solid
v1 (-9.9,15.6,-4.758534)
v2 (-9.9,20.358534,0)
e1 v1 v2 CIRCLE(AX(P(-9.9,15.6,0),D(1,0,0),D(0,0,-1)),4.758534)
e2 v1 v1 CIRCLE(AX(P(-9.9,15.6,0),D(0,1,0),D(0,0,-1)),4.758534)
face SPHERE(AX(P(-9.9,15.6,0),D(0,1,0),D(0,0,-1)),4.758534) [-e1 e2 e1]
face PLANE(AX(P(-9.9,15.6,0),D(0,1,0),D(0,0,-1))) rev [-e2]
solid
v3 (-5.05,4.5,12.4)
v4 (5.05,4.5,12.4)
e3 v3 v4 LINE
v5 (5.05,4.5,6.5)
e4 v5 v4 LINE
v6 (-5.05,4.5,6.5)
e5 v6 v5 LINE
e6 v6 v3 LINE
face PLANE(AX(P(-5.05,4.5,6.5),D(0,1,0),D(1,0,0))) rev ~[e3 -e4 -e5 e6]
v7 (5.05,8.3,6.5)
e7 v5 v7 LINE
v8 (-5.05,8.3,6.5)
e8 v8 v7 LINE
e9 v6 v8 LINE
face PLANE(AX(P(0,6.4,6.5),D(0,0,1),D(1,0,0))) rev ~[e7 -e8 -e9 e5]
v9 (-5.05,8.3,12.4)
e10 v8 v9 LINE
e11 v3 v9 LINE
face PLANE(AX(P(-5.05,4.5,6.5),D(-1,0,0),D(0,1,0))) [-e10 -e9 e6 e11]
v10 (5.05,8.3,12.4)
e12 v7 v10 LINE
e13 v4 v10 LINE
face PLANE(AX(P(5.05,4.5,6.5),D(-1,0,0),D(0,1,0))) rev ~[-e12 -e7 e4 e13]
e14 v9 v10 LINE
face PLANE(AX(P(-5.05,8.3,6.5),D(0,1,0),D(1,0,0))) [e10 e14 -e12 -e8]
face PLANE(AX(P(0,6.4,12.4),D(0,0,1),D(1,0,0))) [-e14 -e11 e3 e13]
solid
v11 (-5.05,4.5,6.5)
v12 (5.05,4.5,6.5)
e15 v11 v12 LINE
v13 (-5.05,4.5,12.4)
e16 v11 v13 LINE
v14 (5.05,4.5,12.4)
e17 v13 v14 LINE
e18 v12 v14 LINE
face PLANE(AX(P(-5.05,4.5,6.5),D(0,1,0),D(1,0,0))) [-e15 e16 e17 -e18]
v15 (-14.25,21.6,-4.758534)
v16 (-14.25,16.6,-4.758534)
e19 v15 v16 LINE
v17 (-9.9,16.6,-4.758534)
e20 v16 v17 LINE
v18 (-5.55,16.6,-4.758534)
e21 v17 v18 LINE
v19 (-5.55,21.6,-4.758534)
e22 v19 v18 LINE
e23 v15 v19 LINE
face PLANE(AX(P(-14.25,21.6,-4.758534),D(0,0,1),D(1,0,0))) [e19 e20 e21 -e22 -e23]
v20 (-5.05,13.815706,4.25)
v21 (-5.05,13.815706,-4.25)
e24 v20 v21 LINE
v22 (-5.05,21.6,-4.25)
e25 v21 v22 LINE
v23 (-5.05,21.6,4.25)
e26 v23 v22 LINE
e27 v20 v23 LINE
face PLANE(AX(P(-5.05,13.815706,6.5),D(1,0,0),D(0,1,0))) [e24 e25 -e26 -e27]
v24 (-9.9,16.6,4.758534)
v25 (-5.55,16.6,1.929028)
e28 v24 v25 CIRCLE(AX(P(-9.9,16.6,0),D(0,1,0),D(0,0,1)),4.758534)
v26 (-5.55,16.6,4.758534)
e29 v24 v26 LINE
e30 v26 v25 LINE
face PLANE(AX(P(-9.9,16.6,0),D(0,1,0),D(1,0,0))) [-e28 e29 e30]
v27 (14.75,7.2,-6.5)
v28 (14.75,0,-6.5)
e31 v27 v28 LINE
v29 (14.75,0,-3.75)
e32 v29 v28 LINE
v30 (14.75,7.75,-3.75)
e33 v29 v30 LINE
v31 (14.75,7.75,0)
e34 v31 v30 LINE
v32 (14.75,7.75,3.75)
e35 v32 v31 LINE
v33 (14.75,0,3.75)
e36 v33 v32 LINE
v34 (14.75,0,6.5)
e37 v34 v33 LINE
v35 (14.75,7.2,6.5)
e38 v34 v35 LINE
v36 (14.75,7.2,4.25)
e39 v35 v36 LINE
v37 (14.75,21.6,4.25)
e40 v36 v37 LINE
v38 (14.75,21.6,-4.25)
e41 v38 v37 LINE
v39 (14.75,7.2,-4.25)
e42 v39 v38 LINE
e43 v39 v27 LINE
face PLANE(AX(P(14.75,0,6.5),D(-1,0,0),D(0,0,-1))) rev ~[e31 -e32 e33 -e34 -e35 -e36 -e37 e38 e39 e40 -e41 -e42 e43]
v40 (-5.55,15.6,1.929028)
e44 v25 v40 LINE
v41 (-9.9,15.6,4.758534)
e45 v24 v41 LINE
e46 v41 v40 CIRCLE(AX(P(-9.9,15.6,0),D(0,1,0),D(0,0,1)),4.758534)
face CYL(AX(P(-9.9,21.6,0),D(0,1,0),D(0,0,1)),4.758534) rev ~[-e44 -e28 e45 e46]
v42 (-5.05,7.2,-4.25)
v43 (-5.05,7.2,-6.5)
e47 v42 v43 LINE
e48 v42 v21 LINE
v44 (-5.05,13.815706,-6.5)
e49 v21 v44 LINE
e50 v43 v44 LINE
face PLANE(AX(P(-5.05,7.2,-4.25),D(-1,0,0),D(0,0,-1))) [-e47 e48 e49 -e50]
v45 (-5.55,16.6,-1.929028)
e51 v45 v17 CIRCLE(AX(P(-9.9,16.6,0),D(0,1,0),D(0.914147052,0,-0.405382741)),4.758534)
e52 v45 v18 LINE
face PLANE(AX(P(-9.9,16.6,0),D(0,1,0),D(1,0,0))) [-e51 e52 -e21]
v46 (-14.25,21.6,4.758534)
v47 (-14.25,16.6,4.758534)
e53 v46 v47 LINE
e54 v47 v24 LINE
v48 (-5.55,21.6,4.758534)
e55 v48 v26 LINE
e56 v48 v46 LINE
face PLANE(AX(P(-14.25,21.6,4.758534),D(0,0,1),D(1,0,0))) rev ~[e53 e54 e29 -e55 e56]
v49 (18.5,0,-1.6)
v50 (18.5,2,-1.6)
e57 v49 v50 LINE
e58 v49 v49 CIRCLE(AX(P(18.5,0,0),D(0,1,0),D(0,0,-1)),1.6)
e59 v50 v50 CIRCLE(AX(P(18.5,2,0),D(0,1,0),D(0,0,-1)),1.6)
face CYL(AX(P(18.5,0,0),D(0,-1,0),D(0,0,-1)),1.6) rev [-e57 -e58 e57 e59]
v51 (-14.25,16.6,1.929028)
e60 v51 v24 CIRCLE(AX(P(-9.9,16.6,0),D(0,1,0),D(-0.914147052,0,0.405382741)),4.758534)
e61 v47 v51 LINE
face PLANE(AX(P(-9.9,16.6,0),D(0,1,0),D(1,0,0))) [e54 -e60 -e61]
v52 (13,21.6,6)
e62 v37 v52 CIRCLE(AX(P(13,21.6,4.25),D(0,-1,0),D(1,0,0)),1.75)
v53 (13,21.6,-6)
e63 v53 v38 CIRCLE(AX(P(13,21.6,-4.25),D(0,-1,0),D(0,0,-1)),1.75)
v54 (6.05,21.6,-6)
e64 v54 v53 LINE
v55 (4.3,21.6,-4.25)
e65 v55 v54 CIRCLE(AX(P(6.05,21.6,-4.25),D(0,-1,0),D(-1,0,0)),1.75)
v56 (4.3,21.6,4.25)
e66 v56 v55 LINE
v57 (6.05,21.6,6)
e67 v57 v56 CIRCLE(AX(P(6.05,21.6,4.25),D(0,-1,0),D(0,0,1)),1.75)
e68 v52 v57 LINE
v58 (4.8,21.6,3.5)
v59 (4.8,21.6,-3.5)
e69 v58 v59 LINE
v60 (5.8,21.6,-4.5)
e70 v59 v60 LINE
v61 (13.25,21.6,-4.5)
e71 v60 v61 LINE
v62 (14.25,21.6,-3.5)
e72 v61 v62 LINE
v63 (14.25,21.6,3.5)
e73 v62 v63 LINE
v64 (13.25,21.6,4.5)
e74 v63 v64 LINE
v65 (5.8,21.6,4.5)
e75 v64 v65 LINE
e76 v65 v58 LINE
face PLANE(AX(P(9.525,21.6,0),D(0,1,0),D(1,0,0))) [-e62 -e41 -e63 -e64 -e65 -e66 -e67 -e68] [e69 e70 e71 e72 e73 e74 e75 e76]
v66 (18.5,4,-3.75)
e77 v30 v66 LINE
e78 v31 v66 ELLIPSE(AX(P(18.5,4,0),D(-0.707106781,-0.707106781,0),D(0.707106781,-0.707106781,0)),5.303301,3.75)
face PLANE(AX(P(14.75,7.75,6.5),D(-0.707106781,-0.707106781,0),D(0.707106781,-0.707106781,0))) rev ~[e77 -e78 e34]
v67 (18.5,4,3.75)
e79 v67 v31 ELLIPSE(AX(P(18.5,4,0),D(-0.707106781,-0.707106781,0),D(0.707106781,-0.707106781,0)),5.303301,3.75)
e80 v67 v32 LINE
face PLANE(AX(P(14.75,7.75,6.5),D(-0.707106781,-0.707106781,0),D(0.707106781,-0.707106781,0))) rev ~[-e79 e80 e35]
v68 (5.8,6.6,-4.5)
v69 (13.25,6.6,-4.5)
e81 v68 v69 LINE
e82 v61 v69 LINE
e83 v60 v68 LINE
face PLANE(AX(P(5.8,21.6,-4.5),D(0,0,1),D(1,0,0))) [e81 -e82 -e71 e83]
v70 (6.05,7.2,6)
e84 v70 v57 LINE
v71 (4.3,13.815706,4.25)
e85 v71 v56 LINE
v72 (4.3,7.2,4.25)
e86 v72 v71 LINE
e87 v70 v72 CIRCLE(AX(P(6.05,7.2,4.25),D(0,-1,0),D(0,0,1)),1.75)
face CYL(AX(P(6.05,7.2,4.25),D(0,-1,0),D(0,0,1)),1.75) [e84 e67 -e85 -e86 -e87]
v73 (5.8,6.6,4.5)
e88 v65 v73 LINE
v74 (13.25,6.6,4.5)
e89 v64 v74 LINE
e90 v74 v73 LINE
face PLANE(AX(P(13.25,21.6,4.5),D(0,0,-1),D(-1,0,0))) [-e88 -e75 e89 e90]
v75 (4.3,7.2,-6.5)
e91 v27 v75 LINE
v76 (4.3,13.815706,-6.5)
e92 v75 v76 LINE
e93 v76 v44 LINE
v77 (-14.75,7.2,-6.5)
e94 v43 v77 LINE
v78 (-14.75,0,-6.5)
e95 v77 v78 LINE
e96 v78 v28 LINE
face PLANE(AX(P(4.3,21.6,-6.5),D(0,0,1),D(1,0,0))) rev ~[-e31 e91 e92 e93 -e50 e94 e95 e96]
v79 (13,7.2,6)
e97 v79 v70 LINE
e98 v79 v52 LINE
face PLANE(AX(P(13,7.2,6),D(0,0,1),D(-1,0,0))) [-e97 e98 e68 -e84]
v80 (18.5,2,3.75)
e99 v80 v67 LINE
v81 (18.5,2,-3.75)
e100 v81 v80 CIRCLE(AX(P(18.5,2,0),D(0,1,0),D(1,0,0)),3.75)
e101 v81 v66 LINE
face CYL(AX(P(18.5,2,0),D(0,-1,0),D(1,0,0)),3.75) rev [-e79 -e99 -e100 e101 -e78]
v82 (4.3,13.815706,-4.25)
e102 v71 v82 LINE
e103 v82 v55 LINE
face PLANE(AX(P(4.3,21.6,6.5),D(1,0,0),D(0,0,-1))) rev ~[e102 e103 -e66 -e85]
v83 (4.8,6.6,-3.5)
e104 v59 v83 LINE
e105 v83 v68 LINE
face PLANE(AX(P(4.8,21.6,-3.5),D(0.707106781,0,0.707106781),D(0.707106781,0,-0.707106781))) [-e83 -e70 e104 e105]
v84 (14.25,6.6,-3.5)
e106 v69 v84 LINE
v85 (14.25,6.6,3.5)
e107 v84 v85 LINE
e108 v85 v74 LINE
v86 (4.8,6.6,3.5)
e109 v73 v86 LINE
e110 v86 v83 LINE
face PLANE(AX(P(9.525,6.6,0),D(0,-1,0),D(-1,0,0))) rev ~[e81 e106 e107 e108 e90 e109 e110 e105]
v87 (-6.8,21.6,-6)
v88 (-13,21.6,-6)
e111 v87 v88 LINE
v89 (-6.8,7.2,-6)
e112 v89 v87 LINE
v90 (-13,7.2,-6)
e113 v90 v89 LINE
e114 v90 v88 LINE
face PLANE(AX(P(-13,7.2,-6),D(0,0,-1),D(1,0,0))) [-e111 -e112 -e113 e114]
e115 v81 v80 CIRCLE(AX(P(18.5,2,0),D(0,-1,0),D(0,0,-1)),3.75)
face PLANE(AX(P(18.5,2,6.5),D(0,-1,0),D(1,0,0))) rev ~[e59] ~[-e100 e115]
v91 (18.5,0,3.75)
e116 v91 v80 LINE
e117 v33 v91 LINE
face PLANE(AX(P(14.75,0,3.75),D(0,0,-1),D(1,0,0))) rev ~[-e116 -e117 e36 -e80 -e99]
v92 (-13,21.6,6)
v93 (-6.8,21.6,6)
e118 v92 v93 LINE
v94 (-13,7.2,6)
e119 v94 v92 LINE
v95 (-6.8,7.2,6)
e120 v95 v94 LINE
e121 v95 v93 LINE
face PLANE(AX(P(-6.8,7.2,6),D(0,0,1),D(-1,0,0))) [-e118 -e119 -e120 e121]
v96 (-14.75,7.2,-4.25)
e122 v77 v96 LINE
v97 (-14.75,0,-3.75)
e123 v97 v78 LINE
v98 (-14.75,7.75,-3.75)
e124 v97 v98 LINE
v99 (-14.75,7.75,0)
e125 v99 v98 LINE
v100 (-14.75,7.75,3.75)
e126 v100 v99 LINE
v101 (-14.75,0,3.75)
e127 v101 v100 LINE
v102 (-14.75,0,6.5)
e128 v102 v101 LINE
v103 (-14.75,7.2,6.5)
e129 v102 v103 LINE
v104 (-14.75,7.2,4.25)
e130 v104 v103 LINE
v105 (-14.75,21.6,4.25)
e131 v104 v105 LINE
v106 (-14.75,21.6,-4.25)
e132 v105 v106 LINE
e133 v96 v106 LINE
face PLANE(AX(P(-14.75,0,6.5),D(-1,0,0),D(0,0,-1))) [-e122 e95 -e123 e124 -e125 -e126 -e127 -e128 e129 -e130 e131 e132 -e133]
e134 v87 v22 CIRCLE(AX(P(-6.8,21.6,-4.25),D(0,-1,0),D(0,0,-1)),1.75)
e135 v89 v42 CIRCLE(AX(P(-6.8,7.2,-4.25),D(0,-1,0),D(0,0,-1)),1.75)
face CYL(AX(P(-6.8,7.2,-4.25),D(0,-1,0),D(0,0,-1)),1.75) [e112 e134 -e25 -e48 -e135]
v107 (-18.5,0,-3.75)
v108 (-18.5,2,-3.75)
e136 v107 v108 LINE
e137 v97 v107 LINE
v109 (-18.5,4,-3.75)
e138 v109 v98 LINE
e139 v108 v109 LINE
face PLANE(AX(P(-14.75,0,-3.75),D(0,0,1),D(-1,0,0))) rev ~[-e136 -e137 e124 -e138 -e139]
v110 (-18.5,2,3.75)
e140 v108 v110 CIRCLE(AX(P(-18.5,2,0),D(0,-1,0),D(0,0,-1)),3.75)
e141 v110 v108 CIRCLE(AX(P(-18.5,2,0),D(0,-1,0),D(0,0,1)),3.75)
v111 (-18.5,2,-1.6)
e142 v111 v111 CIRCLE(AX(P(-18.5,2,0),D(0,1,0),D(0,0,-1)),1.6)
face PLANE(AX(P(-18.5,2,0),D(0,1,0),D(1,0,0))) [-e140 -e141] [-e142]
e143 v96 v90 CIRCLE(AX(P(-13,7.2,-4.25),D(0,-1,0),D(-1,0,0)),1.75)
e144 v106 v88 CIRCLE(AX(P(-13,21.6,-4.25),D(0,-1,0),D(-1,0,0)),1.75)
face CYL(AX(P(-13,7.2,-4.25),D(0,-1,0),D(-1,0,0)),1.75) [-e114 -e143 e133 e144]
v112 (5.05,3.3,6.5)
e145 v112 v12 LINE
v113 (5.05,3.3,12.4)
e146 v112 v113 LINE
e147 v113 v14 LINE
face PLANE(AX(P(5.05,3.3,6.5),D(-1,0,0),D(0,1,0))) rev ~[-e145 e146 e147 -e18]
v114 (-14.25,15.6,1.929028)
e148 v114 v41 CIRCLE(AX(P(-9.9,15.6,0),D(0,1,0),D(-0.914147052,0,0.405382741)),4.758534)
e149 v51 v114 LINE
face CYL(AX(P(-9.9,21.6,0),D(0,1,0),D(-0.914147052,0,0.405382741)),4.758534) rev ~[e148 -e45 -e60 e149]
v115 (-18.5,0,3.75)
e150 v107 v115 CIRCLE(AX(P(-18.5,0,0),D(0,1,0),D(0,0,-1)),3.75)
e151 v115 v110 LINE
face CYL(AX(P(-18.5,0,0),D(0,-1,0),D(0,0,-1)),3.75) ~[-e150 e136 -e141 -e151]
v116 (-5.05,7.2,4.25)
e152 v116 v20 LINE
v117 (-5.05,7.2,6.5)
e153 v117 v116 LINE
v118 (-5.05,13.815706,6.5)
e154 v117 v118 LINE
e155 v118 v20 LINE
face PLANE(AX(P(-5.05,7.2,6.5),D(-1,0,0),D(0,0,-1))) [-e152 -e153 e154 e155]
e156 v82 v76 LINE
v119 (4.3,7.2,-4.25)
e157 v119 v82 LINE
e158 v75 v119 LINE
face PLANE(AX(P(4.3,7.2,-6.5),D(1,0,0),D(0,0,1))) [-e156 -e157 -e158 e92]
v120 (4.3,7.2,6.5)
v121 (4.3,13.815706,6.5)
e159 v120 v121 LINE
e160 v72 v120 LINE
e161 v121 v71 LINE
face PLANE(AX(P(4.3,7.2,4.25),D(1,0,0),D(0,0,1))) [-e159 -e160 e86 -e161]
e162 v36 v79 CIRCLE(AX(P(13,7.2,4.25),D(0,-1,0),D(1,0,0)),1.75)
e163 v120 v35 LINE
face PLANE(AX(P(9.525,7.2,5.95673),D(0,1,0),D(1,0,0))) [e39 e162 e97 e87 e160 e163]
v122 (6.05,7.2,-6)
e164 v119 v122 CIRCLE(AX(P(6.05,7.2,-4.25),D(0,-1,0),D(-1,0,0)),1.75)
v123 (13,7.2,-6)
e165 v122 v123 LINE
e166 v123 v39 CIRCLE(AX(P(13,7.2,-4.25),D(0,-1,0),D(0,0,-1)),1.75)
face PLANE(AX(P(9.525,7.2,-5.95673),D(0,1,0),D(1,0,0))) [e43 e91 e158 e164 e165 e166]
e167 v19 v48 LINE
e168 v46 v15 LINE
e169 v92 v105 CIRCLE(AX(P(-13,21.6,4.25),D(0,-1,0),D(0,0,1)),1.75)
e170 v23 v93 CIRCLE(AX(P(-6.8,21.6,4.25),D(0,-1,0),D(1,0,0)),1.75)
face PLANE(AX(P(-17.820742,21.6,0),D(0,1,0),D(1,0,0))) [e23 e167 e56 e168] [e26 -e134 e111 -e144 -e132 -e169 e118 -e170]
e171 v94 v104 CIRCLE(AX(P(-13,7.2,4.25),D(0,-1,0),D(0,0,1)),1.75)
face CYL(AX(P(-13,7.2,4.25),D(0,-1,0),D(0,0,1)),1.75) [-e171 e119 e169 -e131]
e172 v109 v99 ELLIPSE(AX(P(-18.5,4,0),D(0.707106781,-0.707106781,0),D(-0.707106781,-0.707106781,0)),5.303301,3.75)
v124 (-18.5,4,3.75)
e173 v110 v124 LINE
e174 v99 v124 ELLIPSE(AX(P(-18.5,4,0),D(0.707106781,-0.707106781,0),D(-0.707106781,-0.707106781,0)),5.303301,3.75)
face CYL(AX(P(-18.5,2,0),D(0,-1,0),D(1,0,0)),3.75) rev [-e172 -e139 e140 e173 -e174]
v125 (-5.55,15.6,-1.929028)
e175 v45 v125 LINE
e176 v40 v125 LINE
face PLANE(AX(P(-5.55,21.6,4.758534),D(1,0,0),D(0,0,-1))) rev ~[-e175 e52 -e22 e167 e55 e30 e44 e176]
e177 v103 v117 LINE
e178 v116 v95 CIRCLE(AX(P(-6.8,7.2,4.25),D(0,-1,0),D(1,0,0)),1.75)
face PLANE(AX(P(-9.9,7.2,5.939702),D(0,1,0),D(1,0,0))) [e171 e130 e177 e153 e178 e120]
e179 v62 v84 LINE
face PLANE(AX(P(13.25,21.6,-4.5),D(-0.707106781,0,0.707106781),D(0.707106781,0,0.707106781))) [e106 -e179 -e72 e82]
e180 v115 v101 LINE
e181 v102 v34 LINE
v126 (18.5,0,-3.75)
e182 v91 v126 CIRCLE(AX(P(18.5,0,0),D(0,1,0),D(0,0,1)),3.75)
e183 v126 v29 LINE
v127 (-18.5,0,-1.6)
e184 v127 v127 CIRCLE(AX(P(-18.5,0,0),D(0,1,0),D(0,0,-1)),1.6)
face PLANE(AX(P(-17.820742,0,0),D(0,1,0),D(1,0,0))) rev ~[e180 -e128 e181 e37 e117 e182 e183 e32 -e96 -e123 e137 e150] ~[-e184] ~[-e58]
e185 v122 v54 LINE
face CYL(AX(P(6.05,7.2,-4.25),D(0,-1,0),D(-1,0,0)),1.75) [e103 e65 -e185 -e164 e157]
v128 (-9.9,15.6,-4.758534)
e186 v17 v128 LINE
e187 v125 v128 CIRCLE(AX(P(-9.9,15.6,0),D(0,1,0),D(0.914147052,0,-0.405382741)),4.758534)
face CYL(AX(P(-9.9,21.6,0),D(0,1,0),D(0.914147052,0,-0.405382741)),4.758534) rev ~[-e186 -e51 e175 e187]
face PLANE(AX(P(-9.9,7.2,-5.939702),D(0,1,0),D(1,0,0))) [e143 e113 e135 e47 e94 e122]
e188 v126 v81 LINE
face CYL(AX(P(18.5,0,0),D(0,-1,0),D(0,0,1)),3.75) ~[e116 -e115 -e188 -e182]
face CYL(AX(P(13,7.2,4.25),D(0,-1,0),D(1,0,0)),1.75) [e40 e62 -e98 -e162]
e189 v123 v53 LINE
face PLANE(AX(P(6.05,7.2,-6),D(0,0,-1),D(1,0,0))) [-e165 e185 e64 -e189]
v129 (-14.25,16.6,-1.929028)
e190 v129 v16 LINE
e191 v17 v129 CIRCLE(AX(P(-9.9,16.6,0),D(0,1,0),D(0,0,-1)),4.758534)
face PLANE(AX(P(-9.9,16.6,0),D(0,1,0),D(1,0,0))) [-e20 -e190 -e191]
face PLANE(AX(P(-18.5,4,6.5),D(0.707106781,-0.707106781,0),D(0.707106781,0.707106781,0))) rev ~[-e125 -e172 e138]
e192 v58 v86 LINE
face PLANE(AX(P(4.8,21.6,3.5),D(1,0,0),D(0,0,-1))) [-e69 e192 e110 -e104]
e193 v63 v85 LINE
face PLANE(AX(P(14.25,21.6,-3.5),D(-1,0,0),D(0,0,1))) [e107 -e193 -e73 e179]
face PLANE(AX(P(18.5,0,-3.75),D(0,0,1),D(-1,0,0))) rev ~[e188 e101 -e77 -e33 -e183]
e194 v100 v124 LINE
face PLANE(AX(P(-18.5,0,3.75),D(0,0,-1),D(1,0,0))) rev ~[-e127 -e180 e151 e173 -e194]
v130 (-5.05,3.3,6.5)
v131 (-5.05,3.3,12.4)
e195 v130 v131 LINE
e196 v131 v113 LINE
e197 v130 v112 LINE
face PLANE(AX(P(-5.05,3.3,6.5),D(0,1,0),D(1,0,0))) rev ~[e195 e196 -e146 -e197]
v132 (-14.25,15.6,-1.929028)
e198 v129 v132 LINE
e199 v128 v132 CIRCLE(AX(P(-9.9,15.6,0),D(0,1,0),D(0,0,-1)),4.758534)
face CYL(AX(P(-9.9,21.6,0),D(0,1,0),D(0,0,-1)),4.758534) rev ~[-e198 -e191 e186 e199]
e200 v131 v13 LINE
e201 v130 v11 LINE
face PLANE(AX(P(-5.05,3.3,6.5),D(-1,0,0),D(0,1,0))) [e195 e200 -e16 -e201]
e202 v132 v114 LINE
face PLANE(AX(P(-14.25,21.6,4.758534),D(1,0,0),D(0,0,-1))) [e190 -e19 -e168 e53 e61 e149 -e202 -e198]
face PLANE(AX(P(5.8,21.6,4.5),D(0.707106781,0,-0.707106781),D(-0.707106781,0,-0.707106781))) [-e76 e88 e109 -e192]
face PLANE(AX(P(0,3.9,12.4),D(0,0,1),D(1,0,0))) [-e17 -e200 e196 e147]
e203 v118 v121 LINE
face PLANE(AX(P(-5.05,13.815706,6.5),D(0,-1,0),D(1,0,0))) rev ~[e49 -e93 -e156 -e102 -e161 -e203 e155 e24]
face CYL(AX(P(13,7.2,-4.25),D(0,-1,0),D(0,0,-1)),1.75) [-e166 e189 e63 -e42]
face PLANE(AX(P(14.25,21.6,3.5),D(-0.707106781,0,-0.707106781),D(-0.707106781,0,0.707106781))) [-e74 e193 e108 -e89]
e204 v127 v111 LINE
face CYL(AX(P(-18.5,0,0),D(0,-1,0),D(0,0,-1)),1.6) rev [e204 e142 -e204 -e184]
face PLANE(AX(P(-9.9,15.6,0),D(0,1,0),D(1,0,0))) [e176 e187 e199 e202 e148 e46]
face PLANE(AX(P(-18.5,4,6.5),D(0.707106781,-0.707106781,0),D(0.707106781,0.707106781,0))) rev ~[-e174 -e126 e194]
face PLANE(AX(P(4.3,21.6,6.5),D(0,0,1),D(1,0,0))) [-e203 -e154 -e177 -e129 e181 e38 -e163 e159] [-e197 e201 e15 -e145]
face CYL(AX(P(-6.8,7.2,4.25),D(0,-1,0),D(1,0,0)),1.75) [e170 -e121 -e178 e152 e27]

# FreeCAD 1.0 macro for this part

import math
import FreeCAD as App
import Part
import Sketcher
Q = App.Units.Quantity


def add_polygon(sketch, points):
    """Adds a closed chain of lines whose ends are joined by coincident constraints."""
    first, n = sketch.GeometryCount, len(points)
    for a, b in zip(points, points[1:] + points[:1]):
        sketch.addGeometry(Part.LineSegment(App.Vector(*a, 0), App.Vector(*b, 0)), False)
    for i in range(n):
        sketch.addConstraint(Sketcher.Constraint("Coincident", first + i, 2, first + (i + 1) % n, 1))

doc = App.newDocument("Part")
body = doc.addObject("PartDesign::Body", "Body")

# Sketch on XZ plane
sketch1 = body.newObject("Sketcher::SketchObject", "Sketch")
sketch1.AttachmentSupport = (doc.getObject("XZ_Plane"), [""])
sketch1.MapMode = "FlatFace"
sketch1.addGeometry([
    Part.LineSegment(App.Vector(-14.8, 3.8, 0), App.Vector(-14.8, 6.5, 0)),  # 0
    Part.LineSegment(App.Vector(-14.8, 6.5, 0), App.Vector(14.8, 6.5, 0)),  # 1
    Part.LineSegment(App.Vector(14.8, 6.5, 0), App.Vector(14.8, 3.8, 0)),  # 2
    Part.LineSegment(App.Vector(14.8, 3.8, 0), App.Vector(18.5, 3.8, 0)),  # 3
    Part.ArcOfCircle(Part.Circle(App.Vector(18.5, 0, 0), App.Vector(0, 0, 1), 3.8), math.radians(-90), math.radians(90)),  # 4
    Part.LineSegment(App.Vector(18.5, -3.8, 0), App.Vector(14.8, -3.8, 0)),  # 5
    Part.LineSegment(App.Vector(14.8, -3.8, 0), App.Vector(14.8, -6.5, 0)),  # 6
    Part.LineSegment(App.Vector(14.8, -6.5, 0), App.Vector(-14.8, -6.5, 0)),  # 7
    Part.LineSegment(App.Vector(-14.8, -6.5, 0), App.Vector(-14.8, -3.8, 0)),  # 8
    Part.LineSegment(App.Vector(-14.8, -3.8, 0), App.Vector(-18.5, -3.8, 0)),  # 9
    Part.ArcOfCircle(Part.Circle(App.Vector(-18.5, 0, 0), App.Vector(0, 0, 1), 3.8), math.radians(90), math.radians(270)),  # 10
    Part.LineSegment(App.Vector(-18.5, 3.8, 0), App.Vector(-14.8, 3.8, 0)),  # 11
    Part.Circle(App.Vector(-18.5, 0, 0), App.Vector(0, 0, 1), 1.6),  # 12
    Part.Circle(App.Vector(18.5, 0, 0), App.Vector(0, 0, 1), 1.6),  # 13
], False)
sketch1.addConstraint([
    Sketcher.Constraint("Coincident", 0, 2, 1, 1),
    Sketcher.Constraint("Coincident", 1, 2, 2, 1),
    Sketcher.Constraint("Coincident", 2, 2, 3, 1),
    Sketcher.Constraint("Tangent", 3, 2, 4, 2),
    Sketcher.Constraint("Tangent", 4, 1, 5, 1),
    Sketcher.Constraint("Coincident", 5, 2, 6, 1),
    Sketcher.Constraint("Coincident", 6, 2, 7, 1),
    Sketcher.Constraint("Coincident", 7, 2, 8, 1),
    Sketcher.Constraint("Coincident", 8, 2, 9, 1),
    Sketcher.Constraint("Tangent", 9, 2, 10, 2),
    Sketcher.Constraint("Tangent", 10, 1, 11, 1),
    Sketcher.Constraint("Coincident", 11, 2, 0, 1),
    Sketcher.Constraint("Vertical", 0),
    Sketcher.Constraint("Horizontal", 1),
    Sketcher.Constraint("Vertical", 2),
    Sketcher.Constraint("Horizontal", 3),
    Sketcher.Constraint("Horizontal", 5),
    Sketcher.Constraint("Vertical", 6),
    Sketcher.Constraint("Horizontal", 7),
    Sketcher.Constraint("Vertical", 8),
    Sketcher.Constraint("Horizontal", 9),
    Sketcher.Constraint("Horizontal", 11),
    Sketcher.Constraint("Coincident", 12, 3, 10, 3),
    Sketcher.Constraint("Coincident", 13, 3, 4, 3),
    Sketcher.Constraint("Equal", 4, 10),
    Sketcher.Constraint("Equal", 12, 13),
    Sketcher.Constraint("Symmetric", 4, 3, 10, 3, -1, 1),
    Sketcher.Constraint("Symmetric", 0, 2, 6, 2, -1, 1),
    Sketcher.Constraint("Symmetric", 5, 2, 8, 2, -2),
    Sketcher.Constraint("Vertical", 2, 2, 5, 2),
    Sketcher.Constraint("Diameter", 12, Q("3.2 mm")),
    Sketcher.Constraint("Radius", 4, Q("3.75 mm")),
    Sketcher.Constraint("DistanceX", 1, 1, 1, 2, Q("29.5 mm")),
    Sketcher.Constraint("DistanceX", 10, 3, 4, 3, Q("37 mm")),
    Sketcher.Constraint("DistanceY", 7, 2, 0, 2, Q("13 mm")),
])
pad1 = body.newObject("PartDesign::Pad", "Pad")
pad1.Profile = sketch1
pad1.Length = 21.6
pad1.Reversed = True

# Sketch on XY plane
sketch2 = body.newObject("Sketcher::SketchObject", "Sketch001")
sketch2.AttachmentSupport = (doc.getObject("XY_Plane"), [""])
sketch2.MapMode = "FlatFace"
sketch2.AttachmentOffset = App.Placement(App.Vector(0, 0, 6.5), App.Rotation())
add_polygon(sketch2, [(-22.2, 2), (-18.5, 2), (-18.5, 4), (-14.8, 7.8), (-14.8, 21.6), (-22.2, 21.6)])  # lines 0-5
add_polygon(sketch2, [(18.5, 4), (18.5, 2), (22.2, 2), (22.2, 21.6), (14.8, 21.6), (14.8, 7.8)])  # lines 6-11
add_polygon(sketch2, [(-5, 21.6), (-5, 13.8), (5, 13.8), (5, 21.6)])  # lines 12-15
sketch2.addConstraint([
    Sketcher.Constraint("Horizontal", 0),
    Sketcher.Constraint("Vertical", 1),
    Sketcher.Constraint("Vertical", 3),
    Sketcher.Constraint("Horizontal", 4),
    Sketcher.Constraint("Vertical", 5),
    Sketcher.Constraint("Vertical", 6),
    Sketcher.Constraint("Horizontal", 7),
    Sketcher.Constraint("Vertical", 8),
    Sketcher.Constraint("Horizontal", 9),
    Sketcher.Constraint("Vertical", 10),
    Sketcher.Constraint("Vertical", 12),
    Sketcher.Constraint("Horizontal", 13),
    Sketcher.Constraint("Vertical", 14),
    Sketcher.Constraint("Horizontal", 15),
    Sketcher.Constraint("Symmetric", 0, 2, 6, 2, -2),
    Sketcher.Constraint("Symmetric", 4, 2, 8, 2, -2),
    Sketcher.Constraint("Symmetric", 2, 2, 10, 2, -2),
    Sketcher.Constraint("Perpendicular", 2, 11),
    Sketcher.Constraint("Horizontal", 1, 2, 11, 2),
    Sketcher.Constraint("Horizontal", 9, 2, 14, 2),
    Sketcher.Constraint("DistanceY", 1, 1, 1, 2, Q("2 mm")),
    Sketcher.Constraint("DistanceX", 4, 2, 4, 1, Q("7.5 mm")),
    Sketcher.Constraint("DistanceX", 13, 1, 13, 2, Q("10.1 mm")),
    Sketcher.Constraint("DistanceY", 5, 2, 5, 1, Q("19.6 mm")),
    Sketcher.Constraint("DistanceY", -1, 1, 0, 2, Q("2 mm")),
    Sketcher.Constraint("DistanceX", 0, 2, 6, 2, Q("37 mm")),
    Sketcher.Constraint("DistanceX", 2, 2, 7, 2, Q("37 mm")),
    Sketcher.Constraint("DistanceX", 2, 2, 12, 2, Q("9.7 mm")),
    Sketcher.Constraint("DistanceY", 12, 2, 12, 1, Q("7.784294 mm")),
])
pocket1 = body.newObject("PartDesign::Pocket", "Pocket")
pocket1.Profile = sketch2
pocket1.Length = 21.6

# Sketch on XZ plane
sketch3 = body.newObject("Sketcher::SketchObject", "Sketch002")
sketch3.AttachmentSupport = (doc.getObject("XZ_Plane"), [""])
sketch3.MapMode = "FlatFace"
sketch3.AttachmentOffset = App.Placement(App.Vector(0, 0, -2), App.Rotation())
sketch3.addGeometry([
    Part.Circle(App.Vector(-18.5, 0, 0), App.Vector(0, 0, 1), 3.8),
    Part.Circle(App.Vector(18.5, 0, 0), App.Vector(0, 0, 1), 3.8),
], False)
sketch3.addConstraint([
    Sketcher.Constraint("Equal", 0, 1),
    Sketcher.Constraint("Symmetric", 0, 3, 1, 3, -1, 1),
    Sketcher.Constraint("PointOnObject", 0, 3, -1),
    Sketcher.Constraint("Diameter", 0, Q("7.5 mm")),
    Sketcher.Constraint("DistanceX", 0, 3, 1, 3, Q("37 mm")),
])
pocket2 = body.newObject("PartDesign::Pocket", "Pocket001")
pocket2.Profile = sketch3
pocket2.Type = "ThroughAll"

# Sketch on XZ plane
sketch4 = body.newObject("Sketcher::SketchObject", "Sketch003")
sketch4.AttachmentSupport = (doc.getObject("XZ_Plane"), [""])
sketch4.MapMode = "FlatFace"
sketch4.AttachmentOffset = App.Placement(App.Vector(0, 0, -7.2), App.Rotation())
sketch4.addGeometry([
    Part.ArcOfCircle(Part.Circle(App.Vector(-13, 4.2, 0), App.Vector(0, 0, 1), 1.8), math.radians(90), math.radians(180)),  # 0
    Part.LineSegment(App.Vector(-14.8, 4.2, 0), App.Vector(-14.8, 6.5, 0)),  # 1
    Part.LineSegment(App.Vector(-14.8, 6.5, 0), App.Vector(-5, 6.5, 0)),  # 2
    Part.LineSegment(App.Vector(-5, 6.5, 0), App.Vector(-5, 4.2, 0)),  # 3
    Part.ArcOfCircle(Part.Circle(App.Vector(-6.8, 4.2, 0), App.Vector(0, 0, 1), 1.8), math.radians(0), math.radians(90)),  # 4
    Part.LineSegment(App.Vector(-6.8, 6, 0), App.Vector(-13, 6, 0)),  # 5
    Part.LineSegment(App.Vector(-5, -6.5, 0), App.Vector(-14.8, -6.5, 0)),  # 6
    Part.LineSegment(App.Vector(-14.8, -6.5, 0), App.Vector(-14.8, -4.2, 0)),  # 7
    Part.ArcOfCircle(Part.Circle(App.Vector(-13, -4.2, 0), App.Vector(0, 0, 1), 1.8), math.radians(180), math.radians(270)),  # 8
    Part.LineSegment(App.Vector(-13, -6, 0), App.Vector(-6.8, -6, 0)),  # 9
    Part.ArcOfCircle(Part.Circle(App.Vector(-6.8, -4.2, 0), App.Vector(0, 0, 1), 1.8), math.radians(-90), math.radians(0)),  # 10
    Part.LineSegment(App.Vector(-5, -4.2, 0), App.Vector(-5, -6.5, 0)),  # 11
], False)
sketch4.addConstraint([
    Sketcher.Constraint("Tangent", 0, 2, 1, 1),
    Sketcher.Constraint("Coincident", 1, 2, 2, 1),
    Sketcher.Constraint("Coincident", 2, 2, 3, 1),
    Sketcher.Constraint("Tangent", 3, 2, 4, 1),
    Sketcher.Constraint("Tangent", 4, 2, 5, 1),
    Sketcher.Constraint("Tangent", 5, 2, 0, 1),
    Sketcher.Constraint("Coincident", 6, 2, 7, 1),
    Sketcher.Constraint("Tangent", 7, 2, 8, 1),
    Sketcher.Constraint("Tangent", 8, 2, 9, 1),
    Sketcher.Constraint("Tangent", 9, 2, 10, 1),
    Sketcher.Constraint("Tangent", 10, 2, 11, 1),
    Sketcher.Constraint("Coincident", 11, 2, 6, 1),
    Sketcher.Constraint("Vertical", 1),
    Sketcher.Constraint("Horizontal", 2),
    Sketcher.Constraint("Vertical", 3),
    Sketcher.Constraint("Horizontal", 5),
    Sketcher.Constraint("Horizontal", 6),
    Sketcher.Constraint("Vertical", 7),
    Sketcher.Constraint("Horizontal", 9),
    Sketcher.Constraint("Vertical", 11),
    Sketcher.Constraint("Equal", 0, 4),
    Sketcher.Constraint("Equal", 4, 8),
    Sketcher.Constraint("Equal", 8, 10),
    Sketcher.Constraint("Symmetric", 0, 3, 8, 3, -1),
    Sketcher.Constraint("Symmetric", 2, 2, 11, 2, -1),
    Sketcher.Constraint("Radius", 0, Q("1.75 mm")),
    Sketcher.Constraint("DistanceX", 2, 1, 2, 2, Q("9.7 mm")),
    Sketcher.Constraint("DistanceX", 0, 3, -1, 1, Q("13 mm")),
    Sketcher.Constraint("DistanceY", -1, 1, 4, 2, Q("6 mm")),
    Sketcher.Constraint("DistanceY", 1, 1, 1, 2, Q("2.25 mm")),
])
pocket3 = body.newObject("PartDesign::Pocket", "Pocket002")
pocket3.Profile = sketch4
pocket3.Type = "ThroughAll"

# Sketch on XZ plane
sketch5 = body.newObject("Sketcher::SketchObject", "Sketch004")
sketch5.AttachmentSupport = (doc.getObject("XZ_Plane"), [""])
sketch5.MapMode = "FlatFace"
sketch5.AttachmentOffset = App.Placement(App.Vector(0, 0, -21.6), App.Rotation())
add_polygon(sketch5, [(4, -6), (4, 6), (15, 6), (15, -6)])  # lines 0-3
sketch5.addConstraint([
    Sketcher.Constraint("Vertical", 0),
    Sketcher.Constraint("Horizontal", 1),
    Sketcher.Constraint("Vertical", 2),
    Sketcher.Constraint("Horizontal", 3),
    Sketcher.Constraint("DistanceY", 0, 1, 0, 2, Q("13 mm")),
    Sketcher.Constraint("DistanceX", 1, 1, 1, 2, Q("10.45 mm")),
    Sketcher.Constraint("DistanceX", -1, 1, 0, 2, Q("4.3 mm")),
    Sketcher.Constraint("DistanceY", -1, 1, 0, 2, Q("6.5 mm")),
])
pad2 = body.newObject("PartDesign::Pad", "Pad001")
pad2.Profile = sketch5
pad2.Length = 7.784294

# Sketch on XZ plane
sketch6 = body.newObject("Sketcher::SketchObject", "Sketch005")
sketch6.AttachmentSupport = (doc.getObject("XZ_Plane"), [""])
sketch6.MapMode = "FlatFace"
sketch6.AttachmentOffset = App.Placement(App.Vector(0, 0, -7.2), App.Rotation())
sketch6.addGeometry([
    Part.LineSegment(App.Vector(14.8, 6.5, 0), App.Vector(14.8, 4.2, 0)),  # 0
    Part.ArcOfCircle(Part.Circle(App.Vector(13, 4.2, 0), App.Vector(0, 0, 1), 1.8), math.radians(0), math.radians(90)),  # 1
    Part.LineSegment(App.Vector(13, 6, 0), App.Vector(6, 6, 0)),  # 2
    Part.ArcOfCircle(Part.Circle(App.Vector(6, 4.2, 0), App.Vector(0, 0, 1), 1.8), math.radians(90), math.radians(180)),  # 3
    Part.LineSegment(App.Vector(4.3, 4.2, 0), App.Vector(4.3, 6.5, 0)),  # 4
    Part.LineSegment(App.Vector(4.3, 6.5, 0), App.Vector(14.8, 6.5, 0)),  # 5
    Part.LineSegment(App.Vector(14.8, -4.2, 0), App.Vector(14.8, -6.5, 0)),  # 6
    Part.LineSegment(App.Vector(14.8, -6.5, 0), App.Vector(4.3, -6.5, 0)),  # 7
    Part.LineSegment(App.Vector(4.3, -6.5, 0), App.Vector(4.3, -4.2, 0)),  # 8
    Part.ArcOfCircle(Part.Circle(App.Vector(6, -4.2, 0), App.Vector(0, 0, 1), 1.8), math.radians(180), math.radians(270)),  # 9
    Part.LineSegment(App.Vector(6, -6, 0), App.Vector(13, -6, 0)),  # 10
    Part.ArcOfCircle(Part.Circle(App.Vector(13, -4.2, 0), App.Vector(0, 0, 1), 1.8), math.radians(-90), math.radians(0)),  # 11
], False)
sketch6.addConstraint([
    Sketcher.Constraint("Tangent", 0, 2, 1, 1),
    Sketcher.Constraint("Tangent", 1, 2, 2, 1),
    Sketcher.Constraint("Tangent", 2, 2, 3, 1),
    Sketcher.Constraint("Tangent", 3, 2, 4, 1),
    Sketcher.Constraint("Coincident", 4, 2, 5, 1),
    Sketcher.Constraint("Coincident", 5, 2, 0, 1),
    Sketcher.Constraint("Coincident", 6, 2, 7, 1),
    Sketcher.Constraint("Coincident", 7, 2, 8, 1),
    Sketcher.Constraint("Tangent", 8, 2, 9, 1),
    Sketcher.Constraint("Tangent", 9, 2, 10, 1),
    Sketcher.Constraint("Tangent", 10, 2, 11, 1),
    Sketcher.Constraint("Tangent", 11, 2, 6, 1),
    Sketcher.Constraint("Vertical", 0),
    Sketcher.Constraint("Horizontal", 2),
    Sketcher.Constraint("Vertical", 4),
    Sketcher.Constraint("Horizontal", 5),
    Sketcher.Constraint("Vertical", 6),
    Sketcher.Constraint("Horizontal", 7),
    Sketcher.Constraint("Vertical", 8),
    Sketcher.Constraint("Horizontal", 10),
    Sketcher.Constraint("Equal", 1, 3),
    Sketcher.Constraint("Equal", 3, 9),
    Sketcher.Constraint("Equal", 9, 11),
    Sketcher.Constraint("Symmetric", 3, 3, 9, 3, -1),
    Sketcher.Constraint("Symmetric", 5, 2, 6, 2, -1),
    Sketcher.Constraint("Radius", 1, Q("1.75 mm")),
    Sketcher.Constraint("DistanceX", -1, 1, 1, 3, Q("13 mm")),
    Sketcher.Constraint("DistanceY", -1, 1, 1, 2, Q("6 mm")),
    Sketcher.Constraint("DistanceX", 2, 2, 2, 1, Q("6.95 mm")),
    Sketcher.Constraint("DistanceY", 0, 2, 0, 1, Q("2.25 mm")),
])
pocket4 = body.newObject("PartDesign::Pocket", "Pocket003")
pocket4.Profile = sketch6
pocket4.Length = 14.4

# Sketch on XZ plane
sketch7 = body.newObject("Sketcher::SketchObject", "Sketch006")
sketch7.AttachmentSupport = (doc.getObject("XZ_Plane"), [""])
sketch7.MapMode = "FlatFace"
sketch7.AttachmentOffset = App.Placement(App.Vector(0, 0, -21.6), App.Rotation())
sketch7.addGeometry([
    Part.ArcOfCircle(Part.Circle(App.Vector(-9.9, 0, 0), App.Vector(0, 0, 1), 4.8), math.radians(-90), math.radians(-24)),  # 0
    Part.ArcOfCircle(Part.Circle(App.Vector(-9.9, 0, 0), App.Vector(0, 0, 1), 4.8), math.radians(-156), math.radians(-90)),  # 1
    Part.LineSegment(App.Vector(-14.2, -1.9, 0), App.Vector(-14.2, 1.9, 0)),  # 2
    Part.ArcOfCircle(Part.Circle(App.Vector(-9.9, 0, 0), App.Vector(0, 0, 1), 4.8), math.radians(90), math.radians(156)),  # 3
    Part.ArcOfCircle(Part.Circle(App.Vector(-9.9, 0, 0), App.Vector(0, 0, 1), 4.8), math.radians(24), math.radians(90)),  # 4
    Part.LineSegment(App.Vector(-5.5, 1.9, 0), App.Vector(-5.5, -1.9, 0)),  # 5
], False)
sketch7.addConstraint([
    Sketcher.Constraint("Tangent", 0, 1, 1, 2),
    Sketcher.Constraint("Coincident", 1, 1, 2, 1),
    Sketcher.Constraint("Coincident", 2, 2, 3, 2),
    Sketcher.Constraint("Tangent", 3, 1, 4, 2),
    Sketcher.Constraint("Coincident", 4, 1, 5, 1),
    Sketcher.Constraint("Coincident", 5, 2, 0, 2),
    Sketcher.Constraint("Vertical", 2),
    Sketcher.Constraint("Vertical", 5),
    Sketcher.Constraint("Coincident", 3, 3, 0, 3),
    Sketcher.Constraint("Equal", 0, 1),
    Sketcher.Constraint("Equal", 1, 3),
    Sketcher.Constraint("Equal", 3, 4),
    Sketcher.Constraint("Symmetric", 0, 1, 3, 1, -1),
    Sketcher.Constraint("Horizontal", 2, 2, 4, 1),
    Sketcher.Constraint("Vertical", 4, 3, 0, 1),
    Sketcher.Constraint("DistanceX", 0, 3, -1, 1, Q("9.9 mm")),
    Sketcher.Constraint("DistanceX", 1, 1, -1, 1, Q("14.25 mm")),
    Sketcher.Constraint("Radius", 0, Q("4.758534 mm")),
])
pocket5 = body.newObject("PartDesign::Pocket", "Pocket004")
pocket5.Profile = sketch7
pocket5.Length = 6
pocket5.Reversed = True

# Sketch on XZ plane
sketch8 = body.newObject("Sketcher::SketchObject", "Sketch007")
sketch8.AttachmentSupport = (doc.getObject("XZ_Plane"), [""])
sketch8.MapMode = "FlatFace"
sketch8.AttachmentOffset = App.Placement(App.Vector(0, 0, -21.6), App.Rotation())
add_polygon(sketch8, [(-14, -5), (-14, 5), (-6, 5), (-6, -5)])  # lines 0-3
sketch8.addConstraint([
    Sketcher.Constraint("Vertical", 0),
    Sketcher.Constraint("Horizontal", 1),
    Sketcher.Constraint("Vertical", 2),
    Sketcher.Constraint("Horizontal", 3),
    Sketcher.Constraint("DistanceX", 1, 1, 1, 2, Q("8.7 mm")),
    Sketcher.Constraint("DistanceX", 0, 2, -1, 1, Q("14.25 mm")),
    Sketcher.Constraint("DistanceY", 0, 1, 0, 2, Q("9.517068 mm")),
    Sketcher.Constraint("DistanceY", -1, 1, 0, 2, Q("4.758534 mm")),
])
pocket6 = body.newObject("PartDesign::Pocket", "Pocket005")
pocket6.Profile = sketch8
pocket6.Length = 5
pocket6.Reversed = True

# Sketch on XZ plane
sketch9 = body.newObject("Sketcher::SketchObject", "Sketch008")
sketch9.AttachmentSupport = (doc.getObject("XZ_Plane"), [""])
sketch9.MapMode = "FlatFace"
sketch9.AttachmentOffset = App.Placement(App.Vector(0, 0, -21.6), App.Rotation())
add_polygon(sketch9, [(13.2, -4.5), (5.8, -4.5), (4.8, -3.5), (4.8, 3.5), (5.8, 4.5), (13.2, 4.5), (14.2, 3.5), (14.2, -3.5)])  # lines 0-7
sketch9.addConstraint([
    Sketcher.Constraint("Horizontal", 0),
    Sketcher.Constraint("Vertical", 2),
    Sketcher.Constraint("Horizontal", 4),
    Sketcher.Constraint("Vertical", 6),
    Sketcher.Constraint("Symmetric", 0, 2, 3, 2, -1),
    Sketcher.Constraint("Perpendicular", 1, 3),
    Sketcher.Constraint("Perpendicular", 3, 5),
    Sketcher.Constraint("Perpendicular", 5, 7),
    Sketcher.Constraint("Horizontal", 2, 2, 5, 2),
    Sketcher.Constraint("Horizontal", 1, 2, 6, 2),
    Sketcher.Constraint("Vertical", 4, 2, 7, 2),
    Sketcher.Constraint("DistanceY", 2, 1, 2, 2, Q("7 mm")),
    Sketcher.Constraint("DistanceX", 1, 2, 0, 2, Q("1 mm")),
    Sketcher.Constraint("DistanceX", 0, 2, 0, 1, Q("7.45 mm")),
    Sketcher.Constraint("DistanceX", -1, 1, 0, 2, Q("5.8 mm")),
])
pocket7 = body.newObject("PartDesign::Pocket", "Pocket006")
pocket7.Profile = sketch9
pocket7.Length = 15
pocket7.Reversed = True

# Sketch on XY plane
sketch10 = body.newObject("Sketcher::SketchObject", "Sketch009")
sketch10.AttachmentSupport = (doc.getObject("XY_Plane"), [""])
sketch10.MapMode = "FlatFace"
sketch10.AttachmentOffset = App.Placement(App.Vector(0, 0, 6.5), App.Rotation())
add_polygon(sketch10, [(-5, 4.5), (-5, 3.3), (5, 3.3), (5, 4.5)])  # lines 0-3
sketch10.addConstraint([
    Sketcher.Constraint("Vertical", 0),
    Sketcher.Constraint("Horizontal", 1),
    Sketcher.Constraint("Vertical", 2),
    Sketcher.Constraint("Horizontal", 3),
    Sketcher.Constraint("DistanceX", 1, 1, 1, 2, Q("10.1 mm")),
    Sketcher.Constraint("DistanceY", 0, 2, 0, 1, Q("1.2 mm")),
    Sketcher.Constraint("DistanceY", -1, 1, 0, 2, Q("3.3 mm")),
    Sketcher.Constraint("DistanceX", 0, 2, -1, 1, Q("5.05 mm")),
])
pad3 = body.newObject("PartDesign::Pad", "Pad002")
pad3.Profile = sketch10
pad3.Length = 5.9
body2 = doc.addObject("PartDesign::Body", "Body001")

# Sketch on YZ plane
sketch11 = body2.newObject("Sketcher::SketchObject", "Sketch010")
sketch11.AttachmentSupport = (doc.getObject("YZ_Plane001"), [""])
sketch11.MapMode = "FlatFace"
sketch11.AttachmentOffset = App.Placement(App.Vector(0, 0, -9.9), App.Rotation())
sketch11.addGeometry([
    Part.LineSegment(App.Vector(15.6, 4.8, 0), App.Vector(15.6, 0, 0)),
    Part.LineSegment(App.Vector(15.6, 0, 0), App.Vector(20.4, 0, 0)),
    Part.ArcOfCircle(Part.Circle(App.Vector(15.6, 0, 0), App.Vector(0, 0, 1), 4.8), math.radians(0), math.radians(90)),
], False)
sketch11.addConstraint([
    Sketcher.Constraint("Coincident", 0, 2, 1, 1),
    Sketcher.Constraint("Coincident", 1, 2, 2, 1),
    Sketcher.Constraint("Coincident", 2, 2, 0, 1),
    Sketcher.Constraint("Vertical", 0),
    Sketcher.Constraint("Horizontal", 1),
    Sketcher.Constraint("Coincident", 0, 2, 2, 3),
    Sketcher.Constraint("PointOnObject", 2, 3, -1),
    Sketcher.Constraint("DistanceX", -1, 1, 2, 3, Q("15.6 mm")),
    Sketcher.Constraint("Radius", 2, Q("4.758534 mm")),
])
revolution = body2.newObject("PartDesign::Revolution", "Revolution")
revolution.Profile = sketch11
revolution.ReferenceAxis = (sketch11, ["H_Axis"])
revolution.Angle = 360
body3 = doc.addObject("PartDesign::Body", "Body002")

# Sketch on XY plane
sketch12 = body3.newObject("Sketcher::SketchObject", "Sketch011")
sketch12.AttachmentSupport = (doc.getObject("XY_Plane002"), [""])
sketch12.MapMode = "FlatFace"
sketch12.AttachmentOffset = App.Placement(App.Vector(0, 0, 6.5), App.Rotation())
add_polygon(sketch12, [(-5, 8.3), (-5, 4.5), (5, 4.5), (5, 8.3)])  # lines 0-3
sketch12.addConstraint([
    Sketcher.Constraint("Vertical", 0),
    Sketcher.Constraint("Horizontal", 1),
    Sketcher.Constraint("Vertical", 2),
    Sketcher.Constraint("Horizontal", 3),
    Sketcher.Constraint("DistanceX", 1, 1, 1, 2, Q("10.1 mm")),
    Sketcher.Constraint("DistanceY", 0, 2, 0, 1, Q("3.8 mm")),
    Sketcher.Constraint("DistanceY", -1, 1, 0, 2, Q("4.5 mm")),
    Sketcher.Constraint("DistanceX", 0, 2, -1, 1, Q("5.05 mm")),
])
pad4 = body3.newObject("PartDesign::Pad", "Pad003")
pad4.Profile = sketch12
pad4.Length = 5.9

doc.recompute()
